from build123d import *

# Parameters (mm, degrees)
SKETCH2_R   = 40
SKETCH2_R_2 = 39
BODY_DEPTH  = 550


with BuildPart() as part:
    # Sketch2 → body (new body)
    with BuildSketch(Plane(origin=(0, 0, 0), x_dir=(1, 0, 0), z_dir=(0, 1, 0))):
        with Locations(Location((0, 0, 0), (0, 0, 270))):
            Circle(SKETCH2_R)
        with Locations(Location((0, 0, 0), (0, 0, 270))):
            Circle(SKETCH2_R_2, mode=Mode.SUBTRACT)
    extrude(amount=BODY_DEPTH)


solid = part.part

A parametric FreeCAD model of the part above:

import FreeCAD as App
import Part
import Sketcher
Q = App.Units.Quantity

doc = App.newDocument("Part")
body = doc.addObject("PartDesign::Body", "Body")

# Sketch on XZ plane
sketch1 = doc.addObject("Sketcher::SketchObject", "Sketch")
body.addObject(sketch1)
sketch1.AttachmentSupport = (doc.XZ_Plane, [""])
sketch1.MapMode = "FlatFace"
sketch1.addGeometry(Part.Circle(App.Vector(0, 0, 0), App.Vector(0, 0, 1), 40), False)
sketch1.addGeometry(Part.Circle(App.Vector(0, 0, 0), App.Vector(0, 0, 1), 39), False)
sketch1.addConstraint(Sketcher.Constraint("Coincident", 0, 3, -1, 1))
sketch1.addConstraint(Sketcher.Constraint("Coincident", 1, 3, -1, 1))
sketch1.addConstraint(Sketcher.Constraint("Diameter", 0, Q("80 mm")))
sketch1.addConstraint(Sketcher.Constraint("Diameter", 1, Q("78 mm")))
pad1 = doc.addObject("PartDesign::Pad", "Pad")
body.addObject(pad1)
pad1.Profile = sketch1
pad1.Length = 550
pad1.Reversed = True

doc.recompute()
